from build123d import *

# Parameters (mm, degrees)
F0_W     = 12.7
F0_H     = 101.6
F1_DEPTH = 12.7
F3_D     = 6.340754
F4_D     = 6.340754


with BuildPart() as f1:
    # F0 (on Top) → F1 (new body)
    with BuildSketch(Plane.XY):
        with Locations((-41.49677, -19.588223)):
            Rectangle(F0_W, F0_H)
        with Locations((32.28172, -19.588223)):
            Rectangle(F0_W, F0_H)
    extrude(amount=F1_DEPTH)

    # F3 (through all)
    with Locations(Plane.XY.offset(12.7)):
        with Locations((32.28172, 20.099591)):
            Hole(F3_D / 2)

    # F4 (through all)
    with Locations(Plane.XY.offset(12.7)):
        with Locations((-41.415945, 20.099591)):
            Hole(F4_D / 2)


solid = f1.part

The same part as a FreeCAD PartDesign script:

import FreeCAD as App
import Part
import Sketcher
Q = App.Units.Quantity

doc = App.newDocument("Part")
params = doc.addObject("Spreadsheet::Sheet", "Params")
for row, (alias, value) in enumerate([
    ("sketch1_height", "4 in"),
    ("sketch1_width", "0.5 in"),
    ("pad1_length", "0.5 in"),
    ("hole_diameter", "6.340754 mm"),
    ("hole2_diameter", "6.340754 mm"),
], start=1):
    params.set(f"A{row}", alias)
    params.set(f"B{row}", "=" + value)
    params.setAlias(f"B{row}", alias)

body = doc.addObject("PartDesign::Body", "Body")
body.AllowCompound = True

# Sketch on XY plane
sketch1 = doc.addObject("Sketcher::SketchObject", "Sketch")
body.addObject(sketch1)
sketch1.AttachmentSupport = (doc.XY_Plane, [""])
sketch1.MapMode = "FlatFace"
sketch1.addGeometry(Part.LineSegment(App.Vector(-48, 31, 0), App.Vector(-48, -70, 0)), False)
sketch1.addGeometry(Part.LineSegment(App.Vector(-48, -70, 0), App.Vector(-35, -70, 0)), False)
sketch1.addGeometry(Part.LineSegment(App.Vector(-35, -70, 0), App.Vector(-35, 31, 0)), False)
sketch1.addGeometry(Part.LineSegment(App.Vector(-35, 31, 0), App.Vector(-48, 31, 0)), False)
sketch1.addGeometry(Part.LineSegment(App.Vector(26, 31, 0), App.Vector(26, -70, 0)), False)
sketch1.addGeometry(Part.LineSegment(App.Vector(26, -70, 0), App.Vector(39, -70, 0)), False)
sketch1.addGeometry(Part.LineSegment(App.Vector(39, -70, 0), App.Vector(39, 31, 0)), False)
sketch1.addGeometry(Part.LineSegment(App.Vector(39, 31, 0), App.Vector(26, 31, 0)), False)
sketch1.addConstraint(Sketcher.Constraint("Coincident", 0, 2, 1, 1))
sketch1.addConstraint(Sketcher.Constraint("Coincident", 1, 2, 2, 1))
sketch1.addConstraint(Sketcher.Constraint("Coincident", 2, 2, 3, 1))
sketch1.addConstraint(Sketcher.Constraint("Coincident", 3, 2, 0, 1))
sketch1.addConstraint(Sketcher.Constraint("Coincident", 4, 2, 5, 1))
sketch1.addConstraint(Sketcher.Constraint("Coincident", 5, 2, 6, 1))
sketch1.addConstraint(Sketcher.Constraint("Coincident", 6, 2, 7, 1))
sketch1.addConstraint(Sketcher.Constraint("Coincident", 7, 2, 4, 1))
sketch1.addConstraint(Sketcher.Constraint("Vertical", 0))
sketch1.addConstraint(Sketcher.Constraint("Horizontal", 1))
sketch1.addConstraint(Sketcher.Constraint("Vertical", 2))
sketch1.addConstraint(Sketcher.Constraint("Horizontal", 3))
sketch1.addConstraint(Sketcher.Constraint("Vertical", 4))
sketch1.addConstraint(Sketcher.Constraint("Horizontal", 5))
sketch1.addConstraint(Sketcher.Constraint("Vertical", 6))
sketch1.addConstraint(Sketcher.Constraint("Horizontal", 7))
sketch1.addConstraint(Sketcher.Constraint("Horizontal", 1, 2, 4, 2))
sketch1.addConstraint(Sketcher.Constraint("Horizontal", 3, 2, 6, 2))
sketch1.addConstraint(Sketcher.Constraint("Equal", 3, 5))
sketch1.addConstraint(Sketcher.Constraint("DistanceY", 0, 2, 0, 1, Q("4 in")))
sketch1.addConstraint(Sketcher.Constraint("DistanceX", 1, 1, 1, 2, Q("0.5 in")))
sketch1.addConstraint(Sketcher.Constraint("DistanceX", 0, 2, -1, 1, Q("47.84677 mm")))
sketch1.addConstraint(Sketcher.Constraint("DistanceX", -1, 1, 4, 2, Q("25.93172 mm")))
sketch1.addConstraint(Sketcher.Constraint("DistanceY", 0, 2, -1, 1, Q("70.388223 mm")))
sketch1.setExpression("Constraints[19]", "Params.sketch1_height")
sketch1.setExpression("Constraints[20]", "Params.sketch1_width")
pad1 = doc.addObject("PartDesign::Pad", "Pad")
body.addObject(pad1)
pad1.Profile = sketch1
pad1.setExpression("Length", "Params.pad1_length")

# Sketch on XY plane
sketch2 = doc.addObject("Sketcher::SketchObject", "Sketch001")
body.addObject(sketch2)
sketch2.AttachmentSupport = (doc.XY_Plane, [""])
sketch2.MapMode = "FlatFace"
sketch2.AttachmentOffset = App.Placement(App.Vector(0, 0, 0.5 * 25.4), App.Rotation())
sketch2.addGeometry(Part.Circle(App.Vector(32.3, 20.1, 0), App.Vector(0, 0, 1), 3.2), False)
sketch2.addConstraint(Sketcher.Constraint("Diameter", 0, Q("6.340754 mm")))
sketch2.addConstraint(Sketcher.Constraint("DistanceX", -1, 1, 0, 3, Q("32.28172 mm")))
sketch2.addConstraint(Sketcher.Constraint("DistanceY", -1, 1, 0, 3, Q("20.099591 mm")))
doc.recompute()
hole = doc.addObject("PartDesign::Hole", "Hole")
body.addObject(hole)
hole.Profile = sketch2
hole.ThreadType = "None"
hole.setExpression("Diameter", "Params.hole_diameter")
hole.DepthType = "ThroughAll"

# Sketch on XY plane
sketch3 = doc.addObject("Sketcher::SketchObject", "Sketch002")
body.addObject(sketch3)
sketch3.AttachmentSupport = (doc.XY_Plane, [""])
sketch3.MapMode = "FlatFace"
sketch3.AttachmentOffset = App.Placement(App.Vector(0, 0, 0.5 * 25.4), App.Rotation())
sketch3.addGeometry(Part.Circle(App.Vector(-41.4, 20.1, 0), App.Vector(0, 0, 1), 3.2), False)
sketch3.addConstraint(Sketcher.Constraint("Diameter", 0, Q("6.340754 mm")))
sketch3.addConstraint(Sketcher.Constraint("DistanceY", -1, 1, 0, 3, Q("20.099591 mm")))
sketch3.addConstraint(Sketcher.Constraint("DistanceX", 0, 3, -1, 1, Q("41.415945 mm")))
doc.recompute()
hole2 = doc.addObject("PartDesign::Hole", "Hole001")
body.addObject(hole2)
hole2.Profile = sketch3
hole2.ThreadType = "None"
hole2.setExpression("Diameter", "Params.hole2_diameter")
hole2.DepthType = "ThroughAll"

doc.recompute()
